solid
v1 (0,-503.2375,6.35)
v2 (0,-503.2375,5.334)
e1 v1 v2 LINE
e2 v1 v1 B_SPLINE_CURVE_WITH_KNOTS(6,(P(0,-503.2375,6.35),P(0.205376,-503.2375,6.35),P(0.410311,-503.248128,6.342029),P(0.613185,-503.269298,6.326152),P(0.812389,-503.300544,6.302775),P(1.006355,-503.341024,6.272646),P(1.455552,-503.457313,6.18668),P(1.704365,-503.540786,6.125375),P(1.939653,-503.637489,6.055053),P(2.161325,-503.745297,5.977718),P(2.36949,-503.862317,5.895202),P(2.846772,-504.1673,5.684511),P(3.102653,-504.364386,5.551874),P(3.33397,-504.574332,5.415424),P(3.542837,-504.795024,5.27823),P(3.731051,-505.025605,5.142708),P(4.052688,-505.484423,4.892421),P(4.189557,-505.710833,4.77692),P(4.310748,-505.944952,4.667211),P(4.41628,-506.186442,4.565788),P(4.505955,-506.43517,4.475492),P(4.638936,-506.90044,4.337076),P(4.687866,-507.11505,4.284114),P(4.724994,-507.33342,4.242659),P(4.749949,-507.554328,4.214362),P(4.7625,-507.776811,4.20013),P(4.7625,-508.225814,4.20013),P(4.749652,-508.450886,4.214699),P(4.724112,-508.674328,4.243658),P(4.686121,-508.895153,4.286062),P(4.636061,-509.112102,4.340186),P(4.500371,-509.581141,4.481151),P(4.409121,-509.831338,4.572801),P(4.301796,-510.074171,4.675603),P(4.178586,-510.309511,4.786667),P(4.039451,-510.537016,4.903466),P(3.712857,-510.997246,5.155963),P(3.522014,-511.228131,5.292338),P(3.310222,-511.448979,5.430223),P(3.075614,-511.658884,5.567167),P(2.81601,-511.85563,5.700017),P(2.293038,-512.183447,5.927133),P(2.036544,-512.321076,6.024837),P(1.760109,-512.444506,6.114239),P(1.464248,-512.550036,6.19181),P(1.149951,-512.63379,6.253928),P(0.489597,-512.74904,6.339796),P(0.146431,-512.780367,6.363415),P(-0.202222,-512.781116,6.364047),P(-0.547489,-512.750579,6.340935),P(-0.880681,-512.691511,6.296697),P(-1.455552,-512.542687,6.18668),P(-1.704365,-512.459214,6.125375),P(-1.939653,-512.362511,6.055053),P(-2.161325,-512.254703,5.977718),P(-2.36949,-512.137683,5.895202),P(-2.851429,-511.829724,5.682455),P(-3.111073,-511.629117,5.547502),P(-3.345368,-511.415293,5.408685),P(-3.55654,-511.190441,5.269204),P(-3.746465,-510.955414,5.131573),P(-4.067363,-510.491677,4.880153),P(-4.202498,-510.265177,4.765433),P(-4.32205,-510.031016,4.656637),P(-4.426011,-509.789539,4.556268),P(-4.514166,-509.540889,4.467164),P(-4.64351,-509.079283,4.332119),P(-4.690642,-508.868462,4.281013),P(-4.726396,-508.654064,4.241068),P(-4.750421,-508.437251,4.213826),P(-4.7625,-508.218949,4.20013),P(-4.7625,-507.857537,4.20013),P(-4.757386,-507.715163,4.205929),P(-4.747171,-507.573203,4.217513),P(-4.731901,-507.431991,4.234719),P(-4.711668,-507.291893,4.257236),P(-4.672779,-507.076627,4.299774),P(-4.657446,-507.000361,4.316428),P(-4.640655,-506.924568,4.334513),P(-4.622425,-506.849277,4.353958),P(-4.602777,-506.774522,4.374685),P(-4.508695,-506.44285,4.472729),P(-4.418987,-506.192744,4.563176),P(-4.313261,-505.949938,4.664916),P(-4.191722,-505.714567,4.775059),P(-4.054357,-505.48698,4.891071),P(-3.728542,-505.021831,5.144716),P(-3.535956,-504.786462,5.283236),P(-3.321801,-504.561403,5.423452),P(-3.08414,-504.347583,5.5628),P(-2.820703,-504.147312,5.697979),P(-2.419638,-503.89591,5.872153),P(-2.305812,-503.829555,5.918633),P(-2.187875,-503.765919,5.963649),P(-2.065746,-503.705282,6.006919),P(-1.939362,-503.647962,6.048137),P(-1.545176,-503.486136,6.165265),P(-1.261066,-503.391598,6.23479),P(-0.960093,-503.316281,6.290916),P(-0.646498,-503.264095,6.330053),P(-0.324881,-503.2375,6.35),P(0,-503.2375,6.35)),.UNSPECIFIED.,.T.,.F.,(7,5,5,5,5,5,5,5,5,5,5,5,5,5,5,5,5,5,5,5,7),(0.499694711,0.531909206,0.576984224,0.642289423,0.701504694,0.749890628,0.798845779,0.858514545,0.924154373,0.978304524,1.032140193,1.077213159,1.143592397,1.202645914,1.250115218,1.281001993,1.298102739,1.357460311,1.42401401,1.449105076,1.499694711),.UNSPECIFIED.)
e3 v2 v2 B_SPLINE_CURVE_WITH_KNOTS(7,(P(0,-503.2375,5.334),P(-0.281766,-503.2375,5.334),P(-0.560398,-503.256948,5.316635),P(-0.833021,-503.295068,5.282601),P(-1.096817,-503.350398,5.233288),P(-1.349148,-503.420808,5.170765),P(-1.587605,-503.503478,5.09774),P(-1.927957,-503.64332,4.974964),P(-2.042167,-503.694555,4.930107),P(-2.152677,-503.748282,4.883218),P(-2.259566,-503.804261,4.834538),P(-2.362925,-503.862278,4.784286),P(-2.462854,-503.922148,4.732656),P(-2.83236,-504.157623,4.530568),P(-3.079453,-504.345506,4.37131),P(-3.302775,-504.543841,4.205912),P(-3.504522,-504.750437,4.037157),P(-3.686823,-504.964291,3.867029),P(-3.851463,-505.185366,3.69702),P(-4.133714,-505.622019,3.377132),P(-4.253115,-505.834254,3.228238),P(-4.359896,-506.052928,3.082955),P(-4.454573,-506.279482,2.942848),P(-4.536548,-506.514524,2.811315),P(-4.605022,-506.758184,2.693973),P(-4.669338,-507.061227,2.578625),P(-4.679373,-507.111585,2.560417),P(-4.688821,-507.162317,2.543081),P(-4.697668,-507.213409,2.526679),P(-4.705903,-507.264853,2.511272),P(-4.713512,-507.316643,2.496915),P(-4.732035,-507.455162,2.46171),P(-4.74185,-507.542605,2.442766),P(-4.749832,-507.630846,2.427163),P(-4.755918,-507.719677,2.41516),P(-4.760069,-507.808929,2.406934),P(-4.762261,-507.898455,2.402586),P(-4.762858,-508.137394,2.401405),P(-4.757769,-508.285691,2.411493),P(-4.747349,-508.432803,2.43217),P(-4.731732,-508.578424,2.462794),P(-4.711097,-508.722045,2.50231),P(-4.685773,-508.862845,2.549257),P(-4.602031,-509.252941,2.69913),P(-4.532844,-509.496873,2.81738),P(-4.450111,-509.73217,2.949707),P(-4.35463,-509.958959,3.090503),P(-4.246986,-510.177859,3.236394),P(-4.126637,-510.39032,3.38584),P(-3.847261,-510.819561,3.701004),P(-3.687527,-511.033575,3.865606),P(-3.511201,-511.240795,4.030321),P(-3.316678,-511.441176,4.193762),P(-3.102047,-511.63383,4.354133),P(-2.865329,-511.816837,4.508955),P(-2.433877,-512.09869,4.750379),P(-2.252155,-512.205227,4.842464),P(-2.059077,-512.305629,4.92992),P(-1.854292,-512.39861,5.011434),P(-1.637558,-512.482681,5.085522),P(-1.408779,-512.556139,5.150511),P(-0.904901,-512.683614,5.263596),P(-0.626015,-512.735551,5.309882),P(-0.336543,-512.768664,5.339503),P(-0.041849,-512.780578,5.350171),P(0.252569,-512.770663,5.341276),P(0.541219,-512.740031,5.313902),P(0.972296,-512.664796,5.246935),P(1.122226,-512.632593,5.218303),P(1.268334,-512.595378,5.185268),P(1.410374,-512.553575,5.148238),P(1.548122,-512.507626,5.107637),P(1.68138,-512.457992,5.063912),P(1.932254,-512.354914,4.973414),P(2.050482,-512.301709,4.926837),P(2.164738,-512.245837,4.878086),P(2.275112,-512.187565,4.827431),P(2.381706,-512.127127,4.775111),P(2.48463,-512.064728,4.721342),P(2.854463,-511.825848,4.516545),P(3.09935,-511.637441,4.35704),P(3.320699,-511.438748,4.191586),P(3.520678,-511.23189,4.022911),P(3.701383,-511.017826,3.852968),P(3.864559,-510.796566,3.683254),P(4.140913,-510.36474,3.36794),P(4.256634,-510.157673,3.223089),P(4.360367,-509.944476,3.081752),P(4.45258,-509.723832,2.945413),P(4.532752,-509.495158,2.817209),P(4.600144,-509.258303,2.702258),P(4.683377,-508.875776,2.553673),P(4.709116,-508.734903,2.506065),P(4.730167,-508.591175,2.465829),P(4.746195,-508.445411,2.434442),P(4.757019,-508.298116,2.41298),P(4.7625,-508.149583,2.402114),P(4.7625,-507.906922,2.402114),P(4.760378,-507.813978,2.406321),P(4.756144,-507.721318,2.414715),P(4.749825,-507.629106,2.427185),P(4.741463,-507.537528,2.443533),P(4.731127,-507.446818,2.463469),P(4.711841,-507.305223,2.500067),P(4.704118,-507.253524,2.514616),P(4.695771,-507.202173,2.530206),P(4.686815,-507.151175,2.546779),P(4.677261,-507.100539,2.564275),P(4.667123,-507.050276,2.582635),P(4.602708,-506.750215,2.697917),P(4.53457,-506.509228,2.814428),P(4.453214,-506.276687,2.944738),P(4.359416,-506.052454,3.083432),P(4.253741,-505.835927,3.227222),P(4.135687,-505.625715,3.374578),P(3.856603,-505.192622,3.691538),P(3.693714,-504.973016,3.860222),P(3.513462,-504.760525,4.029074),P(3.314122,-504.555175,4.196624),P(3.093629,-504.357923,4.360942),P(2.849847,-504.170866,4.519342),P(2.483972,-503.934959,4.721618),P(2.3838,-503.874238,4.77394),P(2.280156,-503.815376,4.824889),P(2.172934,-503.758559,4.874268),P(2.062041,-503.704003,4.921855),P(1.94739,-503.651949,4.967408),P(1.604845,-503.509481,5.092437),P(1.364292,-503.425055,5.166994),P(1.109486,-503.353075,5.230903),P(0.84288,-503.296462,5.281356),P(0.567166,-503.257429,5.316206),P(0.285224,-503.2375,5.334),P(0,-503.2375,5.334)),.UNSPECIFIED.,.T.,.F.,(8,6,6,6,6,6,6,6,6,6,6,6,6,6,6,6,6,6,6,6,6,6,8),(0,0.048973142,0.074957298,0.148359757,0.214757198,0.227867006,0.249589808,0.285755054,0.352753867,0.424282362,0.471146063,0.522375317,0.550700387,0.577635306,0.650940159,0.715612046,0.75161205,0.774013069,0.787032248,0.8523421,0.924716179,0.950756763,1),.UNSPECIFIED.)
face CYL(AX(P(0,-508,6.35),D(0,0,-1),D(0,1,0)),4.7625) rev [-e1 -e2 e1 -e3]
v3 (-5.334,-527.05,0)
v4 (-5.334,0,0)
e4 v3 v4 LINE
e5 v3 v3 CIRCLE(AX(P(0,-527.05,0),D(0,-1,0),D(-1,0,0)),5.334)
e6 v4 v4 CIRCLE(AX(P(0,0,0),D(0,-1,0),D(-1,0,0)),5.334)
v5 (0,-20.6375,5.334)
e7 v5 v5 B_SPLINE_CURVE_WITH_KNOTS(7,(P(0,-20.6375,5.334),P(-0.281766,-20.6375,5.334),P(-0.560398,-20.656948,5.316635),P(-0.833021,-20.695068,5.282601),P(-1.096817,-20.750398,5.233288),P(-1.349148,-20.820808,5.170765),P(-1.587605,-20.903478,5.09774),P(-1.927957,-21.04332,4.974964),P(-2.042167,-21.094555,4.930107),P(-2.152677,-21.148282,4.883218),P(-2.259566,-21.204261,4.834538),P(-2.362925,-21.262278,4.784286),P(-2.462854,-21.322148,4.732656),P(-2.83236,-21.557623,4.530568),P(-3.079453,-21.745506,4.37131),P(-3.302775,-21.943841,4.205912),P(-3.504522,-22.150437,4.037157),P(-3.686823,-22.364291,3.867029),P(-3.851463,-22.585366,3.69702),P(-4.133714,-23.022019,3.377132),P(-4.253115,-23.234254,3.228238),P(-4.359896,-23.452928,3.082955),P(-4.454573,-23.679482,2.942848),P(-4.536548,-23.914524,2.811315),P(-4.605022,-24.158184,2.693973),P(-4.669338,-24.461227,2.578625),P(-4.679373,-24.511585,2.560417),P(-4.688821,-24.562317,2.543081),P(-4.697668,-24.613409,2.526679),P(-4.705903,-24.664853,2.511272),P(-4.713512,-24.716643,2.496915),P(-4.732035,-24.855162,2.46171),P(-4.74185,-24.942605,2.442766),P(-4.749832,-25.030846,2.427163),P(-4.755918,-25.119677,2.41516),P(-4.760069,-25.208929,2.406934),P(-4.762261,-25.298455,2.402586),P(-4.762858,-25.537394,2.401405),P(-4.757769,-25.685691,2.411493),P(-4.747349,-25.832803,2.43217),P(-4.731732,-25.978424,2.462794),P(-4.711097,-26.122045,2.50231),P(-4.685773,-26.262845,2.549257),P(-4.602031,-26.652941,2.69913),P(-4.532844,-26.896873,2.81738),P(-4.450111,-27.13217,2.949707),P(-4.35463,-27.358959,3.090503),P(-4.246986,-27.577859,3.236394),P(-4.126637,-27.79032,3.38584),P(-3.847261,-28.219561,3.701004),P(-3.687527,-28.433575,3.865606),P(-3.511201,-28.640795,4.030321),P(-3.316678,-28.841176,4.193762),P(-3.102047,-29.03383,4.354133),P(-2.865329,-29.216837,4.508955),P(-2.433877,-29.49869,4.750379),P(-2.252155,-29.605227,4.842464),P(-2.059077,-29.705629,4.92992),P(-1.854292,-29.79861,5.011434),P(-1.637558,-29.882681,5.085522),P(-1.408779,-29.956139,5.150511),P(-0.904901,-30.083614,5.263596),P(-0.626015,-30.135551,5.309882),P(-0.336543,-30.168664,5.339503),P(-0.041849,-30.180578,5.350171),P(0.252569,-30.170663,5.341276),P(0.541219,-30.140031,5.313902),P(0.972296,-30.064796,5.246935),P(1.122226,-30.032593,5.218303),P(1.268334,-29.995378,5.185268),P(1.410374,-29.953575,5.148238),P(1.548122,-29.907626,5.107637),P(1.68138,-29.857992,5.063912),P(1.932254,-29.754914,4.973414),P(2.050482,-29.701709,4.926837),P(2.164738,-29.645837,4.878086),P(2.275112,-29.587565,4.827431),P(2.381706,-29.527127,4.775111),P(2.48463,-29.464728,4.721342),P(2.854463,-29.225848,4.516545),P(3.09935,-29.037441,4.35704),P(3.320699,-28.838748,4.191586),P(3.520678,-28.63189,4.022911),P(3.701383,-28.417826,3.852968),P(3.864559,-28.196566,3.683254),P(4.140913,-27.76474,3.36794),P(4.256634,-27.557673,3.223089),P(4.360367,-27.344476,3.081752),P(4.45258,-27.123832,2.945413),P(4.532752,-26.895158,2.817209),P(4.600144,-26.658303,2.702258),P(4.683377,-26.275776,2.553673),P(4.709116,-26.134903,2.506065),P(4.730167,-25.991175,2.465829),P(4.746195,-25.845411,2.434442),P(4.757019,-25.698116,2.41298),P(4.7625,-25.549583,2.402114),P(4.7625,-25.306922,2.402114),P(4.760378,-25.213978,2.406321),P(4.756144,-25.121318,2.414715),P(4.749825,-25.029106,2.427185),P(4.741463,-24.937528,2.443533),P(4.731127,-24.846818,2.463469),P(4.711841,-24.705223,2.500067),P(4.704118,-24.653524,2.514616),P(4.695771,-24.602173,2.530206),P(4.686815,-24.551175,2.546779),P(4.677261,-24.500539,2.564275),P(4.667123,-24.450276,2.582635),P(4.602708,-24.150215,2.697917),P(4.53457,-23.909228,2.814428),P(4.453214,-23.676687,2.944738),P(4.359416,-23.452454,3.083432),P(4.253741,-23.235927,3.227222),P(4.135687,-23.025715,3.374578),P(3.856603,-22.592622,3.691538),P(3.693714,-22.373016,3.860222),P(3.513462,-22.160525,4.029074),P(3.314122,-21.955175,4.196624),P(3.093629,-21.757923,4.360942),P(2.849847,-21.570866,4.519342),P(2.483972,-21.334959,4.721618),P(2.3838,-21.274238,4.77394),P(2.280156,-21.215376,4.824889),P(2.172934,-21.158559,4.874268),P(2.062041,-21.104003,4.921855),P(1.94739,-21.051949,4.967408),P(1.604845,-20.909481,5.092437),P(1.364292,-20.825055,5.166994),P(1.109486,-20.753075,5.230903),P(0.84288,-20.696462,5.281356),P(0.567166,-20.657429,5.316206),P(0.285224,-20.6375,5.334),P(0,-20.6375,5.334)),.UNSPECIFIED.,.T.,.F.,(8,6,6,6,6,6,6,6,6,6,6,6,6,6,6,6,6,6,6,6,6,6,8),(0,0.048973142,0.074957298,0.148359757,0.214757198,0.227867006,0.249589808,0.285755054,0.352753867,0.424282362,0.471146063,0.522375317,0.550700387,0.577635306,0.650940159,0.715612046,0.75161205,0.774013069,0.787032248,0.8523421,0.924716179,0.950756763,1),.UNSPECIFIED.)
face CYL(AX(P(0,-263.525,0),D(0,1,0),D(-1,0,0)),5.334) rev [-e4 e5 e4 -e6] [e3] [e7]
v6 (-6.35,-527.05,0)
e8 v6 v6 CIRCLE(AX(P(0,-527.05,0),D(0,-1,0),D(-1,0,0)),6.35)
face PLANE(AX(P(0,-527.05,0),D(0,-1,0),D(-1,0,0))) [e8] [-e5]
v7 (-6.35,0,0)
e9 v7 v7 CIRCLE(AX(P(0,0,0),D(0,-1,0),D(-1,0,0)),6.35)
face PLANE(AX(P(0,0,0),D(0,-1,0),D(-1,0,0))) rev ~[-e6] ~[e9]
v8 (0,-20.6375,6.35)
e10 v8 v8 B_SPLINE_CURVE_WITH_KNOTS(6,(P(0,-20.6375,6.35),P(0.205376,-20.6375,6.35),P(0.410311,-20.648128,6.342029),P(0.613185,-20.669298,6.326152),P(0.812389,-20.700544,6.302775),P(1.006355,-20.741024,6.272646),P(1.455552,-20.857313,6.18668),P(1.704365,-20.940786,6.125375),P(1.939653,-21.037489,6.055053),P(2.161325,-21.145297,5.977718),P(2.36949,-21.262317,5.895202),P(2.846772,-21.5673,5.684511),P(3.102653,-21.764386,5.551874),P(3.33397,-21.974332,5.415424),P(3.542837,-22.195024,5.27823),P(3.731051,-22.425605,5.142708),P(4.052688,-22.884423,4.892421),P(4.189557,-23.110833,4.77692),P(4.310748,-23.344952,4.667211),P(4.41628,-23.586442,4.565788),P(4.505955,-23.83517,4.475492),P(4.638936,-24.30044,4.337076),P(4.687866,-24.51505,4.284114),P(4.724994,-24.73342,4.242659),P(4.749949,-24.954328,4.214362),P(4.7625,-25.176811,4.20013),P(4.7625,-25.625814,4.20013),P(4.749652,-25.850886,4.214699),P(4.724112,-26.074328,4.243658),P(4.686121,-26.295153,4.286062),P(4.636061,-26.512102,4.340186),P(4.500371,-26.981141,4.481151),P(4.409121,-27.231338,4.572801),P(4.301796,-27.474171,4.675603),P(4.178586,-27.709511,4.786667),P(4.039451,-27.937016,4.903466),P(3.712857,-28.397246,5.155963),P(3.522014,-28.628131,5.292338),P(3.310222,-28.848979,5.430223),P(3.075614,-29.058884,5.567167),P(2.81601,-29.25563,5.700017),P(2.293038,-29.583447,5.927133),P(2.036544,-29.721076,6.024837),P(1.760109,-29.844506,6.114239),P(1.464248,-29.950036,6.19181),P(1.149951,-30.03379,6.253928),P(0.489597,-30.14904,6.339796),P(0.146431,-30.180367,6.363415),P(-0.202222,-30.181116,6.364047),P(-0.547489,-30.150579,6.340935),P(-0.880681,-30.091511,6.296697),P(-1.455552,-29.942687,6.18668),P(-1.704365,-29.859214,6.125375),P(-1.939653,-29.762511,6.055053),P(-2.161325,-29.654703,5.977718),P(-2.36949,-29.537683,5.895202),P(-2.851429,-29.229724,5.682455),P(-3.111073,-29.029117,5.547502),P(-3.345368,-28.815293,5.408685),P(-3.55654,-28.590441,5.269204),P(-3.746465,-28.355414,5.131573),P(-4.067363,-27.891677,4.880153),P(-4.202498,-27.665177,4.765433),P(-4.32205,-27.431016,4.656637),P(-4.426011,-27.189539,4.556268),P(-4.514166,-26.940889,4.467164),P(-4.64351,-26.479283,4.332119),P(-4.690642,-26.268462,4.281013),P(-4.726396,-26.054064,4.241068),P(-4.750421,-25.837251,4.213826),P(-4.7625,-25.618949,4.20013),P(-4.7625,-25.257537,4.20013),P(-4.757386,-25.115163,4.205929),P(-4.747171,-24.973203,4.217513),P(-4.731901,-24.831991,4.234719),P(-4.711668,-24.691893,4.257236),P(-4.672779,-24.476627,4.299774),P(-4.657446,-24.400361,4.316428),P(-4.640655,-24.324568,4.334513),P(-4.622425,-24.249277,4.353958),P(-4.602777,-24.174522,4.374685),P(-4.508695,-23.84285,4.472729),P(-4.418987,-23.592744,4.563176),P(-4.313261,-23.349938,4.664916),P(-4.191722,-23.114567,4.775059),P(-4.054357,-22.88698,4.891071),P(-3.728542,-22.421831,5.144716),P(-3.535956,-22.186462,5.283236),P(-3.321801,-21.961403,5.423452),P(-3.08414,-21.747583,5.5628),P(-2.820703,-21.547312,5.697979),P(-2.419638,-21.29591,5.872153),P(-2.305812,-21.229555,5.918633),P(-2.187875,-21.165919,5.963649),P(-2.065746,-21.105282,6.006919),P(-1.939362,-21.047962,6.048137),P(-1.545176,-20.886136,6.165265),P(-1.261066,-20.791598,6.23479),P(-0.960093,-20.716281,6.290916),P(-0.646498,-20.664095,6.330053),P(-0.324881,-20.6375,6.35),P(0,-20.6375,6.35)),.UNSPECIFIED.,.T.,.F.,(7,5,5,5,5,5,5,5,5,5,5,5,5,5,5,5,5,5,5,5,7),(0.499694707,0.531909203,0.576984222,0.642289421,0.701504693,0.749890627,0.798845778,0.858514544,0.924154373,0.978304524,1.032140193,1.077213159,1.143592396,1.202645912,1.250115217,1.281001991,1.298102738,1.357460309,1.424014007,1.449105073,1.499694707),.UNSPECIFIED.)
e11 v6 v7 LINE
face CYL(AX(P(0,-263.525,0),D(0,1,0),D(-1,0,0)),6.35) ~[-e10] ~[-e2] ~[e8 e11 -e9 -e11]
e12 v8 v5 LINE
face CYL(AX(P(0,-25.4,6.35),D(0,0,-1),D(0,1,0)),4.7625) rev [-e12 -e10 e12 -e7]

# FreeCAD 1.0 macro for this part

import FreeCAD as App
import Part
import Sketcher
Q = App.Units.Quantity

doc = App.newDocument("Part")
body = doc.addObject("PartDesign::Body", "Body")

sketch1 = body.newObject("Sketcher::SketchObject", "Sketch")
sketch1.AttachmentSupport = (doc.getObject("XY_Plane"), [""])
sketch1.MapMode = "FlatFace"
sketch1.addGeometry(Part.LineSegment(App.Vector(-6.3, 0, 0), App.Vector(-6.3, -527, 0)), False)
sketch1.addGeometry(Part.LineSegment(App.Vector(-6.3, -527, 0), App.Vector(-5.3, -527, 0)), False)
sketch1.addGeometry(Part.LineSegment(App.Vector(-5.3, -527, 0), App.Vector(-5.3, 0, 0)), False)
sketch1.addGeometry(Part.LineSegment(App.Vector(-5.3, 0, 0), App.Vector(-6.3, 0, 0)), False)
sketch1.addConstraint(Sketcher.Constraint("Coincident", 0, 2, 1, 1))
sketch1.addConstraint(Sketcher.Constraint("Coincident", 1, 2, 2, 1))
sketch1.addConstraint(Sketcher.Constraint("Coincident", 2, 2, 3, 1))
sketch1.addConstraint(Sketcher.Constraint("Coincident", 3, 2, 0, 1))
sketch1.addConstraint(Sketcher.Constraint("Vertical", 0))
sketch1.addConstraint(Sketcher.Constraint("Horizontal", 1))
sketch1.addConstraint(Sketcher.Constraint("Vertical", 2))
sketch1.addConstraint(Sketcher.Constraint("Horizontal", 3))
sketch1.addConstraint(Sketcher.Constraint("PointOnObject", 2, 2, -1))
sketch1.addConstraint(Sketcher.Constraint("DistanceX", 1, 1, 1, 2, Q("0.04 in")))
sketch1.addConstraint(Sketcher.Constraint("DistanceY", 0, 2, 0, 1, Q("20.75 in")))
sketch1.addConstraint(Sketcher.Constraint("DistanceX", 0, 2, -1, 1, Q("0.25 in")))
revolution = body.newObject("PartDesign::Revolution", "Revolution")
revolution.Profile = sketch1
revolution.ReferenceAxis = (sketch1, ["V_Axis"])
revolution.Angle = 360

sketch2 = body.newObject("Sketcher::SketchObject", "Sketch001")
sketch2.AttachmentSupport = (doc.getObject("YZ_Plane"), [""])
sketch2.MapMode = "FlatFace"
sketch2.addGeometry(Part.LineSegment(App.Vector(-508, 9.2, 0), App.Vector(-508, 0, 0)), False)
sketch2.addGeometry(Part.LineSegment(App.Vector(-508, 0, 0), App.Vector(-503.2, 0, 0)), False)
sketch2.addGeometry(Part.LineSegment(App.Vector(-503.2, 0, 0), App.Vector(-503.2, 6.3, 0)), False)
sketch2.addGeometry(Part.LineSegment(App.Vector(-503.2, 6.3, 0), App.Vector(-508, 9.2, 0)), False)
sketch2.addGeometry(Part.LineSegment(App.Vector(-508, 0, 0), App.Vector(-508, 9.2, 0)), True)
sketch2.addConstraint(Sketcher.Constraint("Coincident", 0, 2, 1, 1))
sketch2.addConstraint(Sketcher.Constraint("Coincident", 1, 2, 2, 1))
sketch2.addConstraint(Sketcher.Constraint("Coincident", 2, 2, 3, 1))
sketch2.addConstraint(Sketcher.Constraint("Coincident", 3, 2, 0, 1))
sketch2.addConstraint(Sketcher.Constraint("Vertical", 0))
sketch2.addConstraint(Sketcher.Constraint("Horizontal", 1))
sketch2.addConstraint(Sketcher.Constraint("Vertical", 2))
sketch2.addConstraint(Sketcher.Constraint("Vertical", 4))
sketch2.addConstraint(Sketcher.Constraint("Coincident", 4, 1, 0, 2))
sketch2.addConstraint(Sketcher.Constraint("PointOnObject", 0, 2, -1))
sketch2.addConstraint(Sketcher.Constraint("Equal", 0, 4))
sketch2.addConstraint(Sketcher.Constraint("DistanceX", 0, 2, -1, 1, Q("20 in")))
sketch2.addConstraint(Sketcher.Constraint("Angle", 3, Q("149 deg")))
sketch2.addConstraint(Sketcher.Constraint("DistanceY", 2, 1, 2, 2, Q("0.25 in")))
sketch2.addConstraint(Sketcher.Constraint("DistanceX", 1, 1, 1, 2, Q("0.1875 in")))
groove = body.newObject("PartDesign::Groove", "Groove")
groove.Profile = sketch2
groove.ReferenceAxis = (sketch2, ["Axis0"])
groove.Angle = 360
doc.recompute()

linearpattern = body.newObject("PartDesign::LinearPattern", "LinearPattern")
linearpattern.Originals = [groove]
linearpattern.Direction = (doc.getObject("Y_Axis"), [""])
linearpattern.Mode = "offset"
linearpattern.Offset = Q("19 in")
linearpattern.Occurrences = 2
body.Tip = linearpattern

doc.recompute()
